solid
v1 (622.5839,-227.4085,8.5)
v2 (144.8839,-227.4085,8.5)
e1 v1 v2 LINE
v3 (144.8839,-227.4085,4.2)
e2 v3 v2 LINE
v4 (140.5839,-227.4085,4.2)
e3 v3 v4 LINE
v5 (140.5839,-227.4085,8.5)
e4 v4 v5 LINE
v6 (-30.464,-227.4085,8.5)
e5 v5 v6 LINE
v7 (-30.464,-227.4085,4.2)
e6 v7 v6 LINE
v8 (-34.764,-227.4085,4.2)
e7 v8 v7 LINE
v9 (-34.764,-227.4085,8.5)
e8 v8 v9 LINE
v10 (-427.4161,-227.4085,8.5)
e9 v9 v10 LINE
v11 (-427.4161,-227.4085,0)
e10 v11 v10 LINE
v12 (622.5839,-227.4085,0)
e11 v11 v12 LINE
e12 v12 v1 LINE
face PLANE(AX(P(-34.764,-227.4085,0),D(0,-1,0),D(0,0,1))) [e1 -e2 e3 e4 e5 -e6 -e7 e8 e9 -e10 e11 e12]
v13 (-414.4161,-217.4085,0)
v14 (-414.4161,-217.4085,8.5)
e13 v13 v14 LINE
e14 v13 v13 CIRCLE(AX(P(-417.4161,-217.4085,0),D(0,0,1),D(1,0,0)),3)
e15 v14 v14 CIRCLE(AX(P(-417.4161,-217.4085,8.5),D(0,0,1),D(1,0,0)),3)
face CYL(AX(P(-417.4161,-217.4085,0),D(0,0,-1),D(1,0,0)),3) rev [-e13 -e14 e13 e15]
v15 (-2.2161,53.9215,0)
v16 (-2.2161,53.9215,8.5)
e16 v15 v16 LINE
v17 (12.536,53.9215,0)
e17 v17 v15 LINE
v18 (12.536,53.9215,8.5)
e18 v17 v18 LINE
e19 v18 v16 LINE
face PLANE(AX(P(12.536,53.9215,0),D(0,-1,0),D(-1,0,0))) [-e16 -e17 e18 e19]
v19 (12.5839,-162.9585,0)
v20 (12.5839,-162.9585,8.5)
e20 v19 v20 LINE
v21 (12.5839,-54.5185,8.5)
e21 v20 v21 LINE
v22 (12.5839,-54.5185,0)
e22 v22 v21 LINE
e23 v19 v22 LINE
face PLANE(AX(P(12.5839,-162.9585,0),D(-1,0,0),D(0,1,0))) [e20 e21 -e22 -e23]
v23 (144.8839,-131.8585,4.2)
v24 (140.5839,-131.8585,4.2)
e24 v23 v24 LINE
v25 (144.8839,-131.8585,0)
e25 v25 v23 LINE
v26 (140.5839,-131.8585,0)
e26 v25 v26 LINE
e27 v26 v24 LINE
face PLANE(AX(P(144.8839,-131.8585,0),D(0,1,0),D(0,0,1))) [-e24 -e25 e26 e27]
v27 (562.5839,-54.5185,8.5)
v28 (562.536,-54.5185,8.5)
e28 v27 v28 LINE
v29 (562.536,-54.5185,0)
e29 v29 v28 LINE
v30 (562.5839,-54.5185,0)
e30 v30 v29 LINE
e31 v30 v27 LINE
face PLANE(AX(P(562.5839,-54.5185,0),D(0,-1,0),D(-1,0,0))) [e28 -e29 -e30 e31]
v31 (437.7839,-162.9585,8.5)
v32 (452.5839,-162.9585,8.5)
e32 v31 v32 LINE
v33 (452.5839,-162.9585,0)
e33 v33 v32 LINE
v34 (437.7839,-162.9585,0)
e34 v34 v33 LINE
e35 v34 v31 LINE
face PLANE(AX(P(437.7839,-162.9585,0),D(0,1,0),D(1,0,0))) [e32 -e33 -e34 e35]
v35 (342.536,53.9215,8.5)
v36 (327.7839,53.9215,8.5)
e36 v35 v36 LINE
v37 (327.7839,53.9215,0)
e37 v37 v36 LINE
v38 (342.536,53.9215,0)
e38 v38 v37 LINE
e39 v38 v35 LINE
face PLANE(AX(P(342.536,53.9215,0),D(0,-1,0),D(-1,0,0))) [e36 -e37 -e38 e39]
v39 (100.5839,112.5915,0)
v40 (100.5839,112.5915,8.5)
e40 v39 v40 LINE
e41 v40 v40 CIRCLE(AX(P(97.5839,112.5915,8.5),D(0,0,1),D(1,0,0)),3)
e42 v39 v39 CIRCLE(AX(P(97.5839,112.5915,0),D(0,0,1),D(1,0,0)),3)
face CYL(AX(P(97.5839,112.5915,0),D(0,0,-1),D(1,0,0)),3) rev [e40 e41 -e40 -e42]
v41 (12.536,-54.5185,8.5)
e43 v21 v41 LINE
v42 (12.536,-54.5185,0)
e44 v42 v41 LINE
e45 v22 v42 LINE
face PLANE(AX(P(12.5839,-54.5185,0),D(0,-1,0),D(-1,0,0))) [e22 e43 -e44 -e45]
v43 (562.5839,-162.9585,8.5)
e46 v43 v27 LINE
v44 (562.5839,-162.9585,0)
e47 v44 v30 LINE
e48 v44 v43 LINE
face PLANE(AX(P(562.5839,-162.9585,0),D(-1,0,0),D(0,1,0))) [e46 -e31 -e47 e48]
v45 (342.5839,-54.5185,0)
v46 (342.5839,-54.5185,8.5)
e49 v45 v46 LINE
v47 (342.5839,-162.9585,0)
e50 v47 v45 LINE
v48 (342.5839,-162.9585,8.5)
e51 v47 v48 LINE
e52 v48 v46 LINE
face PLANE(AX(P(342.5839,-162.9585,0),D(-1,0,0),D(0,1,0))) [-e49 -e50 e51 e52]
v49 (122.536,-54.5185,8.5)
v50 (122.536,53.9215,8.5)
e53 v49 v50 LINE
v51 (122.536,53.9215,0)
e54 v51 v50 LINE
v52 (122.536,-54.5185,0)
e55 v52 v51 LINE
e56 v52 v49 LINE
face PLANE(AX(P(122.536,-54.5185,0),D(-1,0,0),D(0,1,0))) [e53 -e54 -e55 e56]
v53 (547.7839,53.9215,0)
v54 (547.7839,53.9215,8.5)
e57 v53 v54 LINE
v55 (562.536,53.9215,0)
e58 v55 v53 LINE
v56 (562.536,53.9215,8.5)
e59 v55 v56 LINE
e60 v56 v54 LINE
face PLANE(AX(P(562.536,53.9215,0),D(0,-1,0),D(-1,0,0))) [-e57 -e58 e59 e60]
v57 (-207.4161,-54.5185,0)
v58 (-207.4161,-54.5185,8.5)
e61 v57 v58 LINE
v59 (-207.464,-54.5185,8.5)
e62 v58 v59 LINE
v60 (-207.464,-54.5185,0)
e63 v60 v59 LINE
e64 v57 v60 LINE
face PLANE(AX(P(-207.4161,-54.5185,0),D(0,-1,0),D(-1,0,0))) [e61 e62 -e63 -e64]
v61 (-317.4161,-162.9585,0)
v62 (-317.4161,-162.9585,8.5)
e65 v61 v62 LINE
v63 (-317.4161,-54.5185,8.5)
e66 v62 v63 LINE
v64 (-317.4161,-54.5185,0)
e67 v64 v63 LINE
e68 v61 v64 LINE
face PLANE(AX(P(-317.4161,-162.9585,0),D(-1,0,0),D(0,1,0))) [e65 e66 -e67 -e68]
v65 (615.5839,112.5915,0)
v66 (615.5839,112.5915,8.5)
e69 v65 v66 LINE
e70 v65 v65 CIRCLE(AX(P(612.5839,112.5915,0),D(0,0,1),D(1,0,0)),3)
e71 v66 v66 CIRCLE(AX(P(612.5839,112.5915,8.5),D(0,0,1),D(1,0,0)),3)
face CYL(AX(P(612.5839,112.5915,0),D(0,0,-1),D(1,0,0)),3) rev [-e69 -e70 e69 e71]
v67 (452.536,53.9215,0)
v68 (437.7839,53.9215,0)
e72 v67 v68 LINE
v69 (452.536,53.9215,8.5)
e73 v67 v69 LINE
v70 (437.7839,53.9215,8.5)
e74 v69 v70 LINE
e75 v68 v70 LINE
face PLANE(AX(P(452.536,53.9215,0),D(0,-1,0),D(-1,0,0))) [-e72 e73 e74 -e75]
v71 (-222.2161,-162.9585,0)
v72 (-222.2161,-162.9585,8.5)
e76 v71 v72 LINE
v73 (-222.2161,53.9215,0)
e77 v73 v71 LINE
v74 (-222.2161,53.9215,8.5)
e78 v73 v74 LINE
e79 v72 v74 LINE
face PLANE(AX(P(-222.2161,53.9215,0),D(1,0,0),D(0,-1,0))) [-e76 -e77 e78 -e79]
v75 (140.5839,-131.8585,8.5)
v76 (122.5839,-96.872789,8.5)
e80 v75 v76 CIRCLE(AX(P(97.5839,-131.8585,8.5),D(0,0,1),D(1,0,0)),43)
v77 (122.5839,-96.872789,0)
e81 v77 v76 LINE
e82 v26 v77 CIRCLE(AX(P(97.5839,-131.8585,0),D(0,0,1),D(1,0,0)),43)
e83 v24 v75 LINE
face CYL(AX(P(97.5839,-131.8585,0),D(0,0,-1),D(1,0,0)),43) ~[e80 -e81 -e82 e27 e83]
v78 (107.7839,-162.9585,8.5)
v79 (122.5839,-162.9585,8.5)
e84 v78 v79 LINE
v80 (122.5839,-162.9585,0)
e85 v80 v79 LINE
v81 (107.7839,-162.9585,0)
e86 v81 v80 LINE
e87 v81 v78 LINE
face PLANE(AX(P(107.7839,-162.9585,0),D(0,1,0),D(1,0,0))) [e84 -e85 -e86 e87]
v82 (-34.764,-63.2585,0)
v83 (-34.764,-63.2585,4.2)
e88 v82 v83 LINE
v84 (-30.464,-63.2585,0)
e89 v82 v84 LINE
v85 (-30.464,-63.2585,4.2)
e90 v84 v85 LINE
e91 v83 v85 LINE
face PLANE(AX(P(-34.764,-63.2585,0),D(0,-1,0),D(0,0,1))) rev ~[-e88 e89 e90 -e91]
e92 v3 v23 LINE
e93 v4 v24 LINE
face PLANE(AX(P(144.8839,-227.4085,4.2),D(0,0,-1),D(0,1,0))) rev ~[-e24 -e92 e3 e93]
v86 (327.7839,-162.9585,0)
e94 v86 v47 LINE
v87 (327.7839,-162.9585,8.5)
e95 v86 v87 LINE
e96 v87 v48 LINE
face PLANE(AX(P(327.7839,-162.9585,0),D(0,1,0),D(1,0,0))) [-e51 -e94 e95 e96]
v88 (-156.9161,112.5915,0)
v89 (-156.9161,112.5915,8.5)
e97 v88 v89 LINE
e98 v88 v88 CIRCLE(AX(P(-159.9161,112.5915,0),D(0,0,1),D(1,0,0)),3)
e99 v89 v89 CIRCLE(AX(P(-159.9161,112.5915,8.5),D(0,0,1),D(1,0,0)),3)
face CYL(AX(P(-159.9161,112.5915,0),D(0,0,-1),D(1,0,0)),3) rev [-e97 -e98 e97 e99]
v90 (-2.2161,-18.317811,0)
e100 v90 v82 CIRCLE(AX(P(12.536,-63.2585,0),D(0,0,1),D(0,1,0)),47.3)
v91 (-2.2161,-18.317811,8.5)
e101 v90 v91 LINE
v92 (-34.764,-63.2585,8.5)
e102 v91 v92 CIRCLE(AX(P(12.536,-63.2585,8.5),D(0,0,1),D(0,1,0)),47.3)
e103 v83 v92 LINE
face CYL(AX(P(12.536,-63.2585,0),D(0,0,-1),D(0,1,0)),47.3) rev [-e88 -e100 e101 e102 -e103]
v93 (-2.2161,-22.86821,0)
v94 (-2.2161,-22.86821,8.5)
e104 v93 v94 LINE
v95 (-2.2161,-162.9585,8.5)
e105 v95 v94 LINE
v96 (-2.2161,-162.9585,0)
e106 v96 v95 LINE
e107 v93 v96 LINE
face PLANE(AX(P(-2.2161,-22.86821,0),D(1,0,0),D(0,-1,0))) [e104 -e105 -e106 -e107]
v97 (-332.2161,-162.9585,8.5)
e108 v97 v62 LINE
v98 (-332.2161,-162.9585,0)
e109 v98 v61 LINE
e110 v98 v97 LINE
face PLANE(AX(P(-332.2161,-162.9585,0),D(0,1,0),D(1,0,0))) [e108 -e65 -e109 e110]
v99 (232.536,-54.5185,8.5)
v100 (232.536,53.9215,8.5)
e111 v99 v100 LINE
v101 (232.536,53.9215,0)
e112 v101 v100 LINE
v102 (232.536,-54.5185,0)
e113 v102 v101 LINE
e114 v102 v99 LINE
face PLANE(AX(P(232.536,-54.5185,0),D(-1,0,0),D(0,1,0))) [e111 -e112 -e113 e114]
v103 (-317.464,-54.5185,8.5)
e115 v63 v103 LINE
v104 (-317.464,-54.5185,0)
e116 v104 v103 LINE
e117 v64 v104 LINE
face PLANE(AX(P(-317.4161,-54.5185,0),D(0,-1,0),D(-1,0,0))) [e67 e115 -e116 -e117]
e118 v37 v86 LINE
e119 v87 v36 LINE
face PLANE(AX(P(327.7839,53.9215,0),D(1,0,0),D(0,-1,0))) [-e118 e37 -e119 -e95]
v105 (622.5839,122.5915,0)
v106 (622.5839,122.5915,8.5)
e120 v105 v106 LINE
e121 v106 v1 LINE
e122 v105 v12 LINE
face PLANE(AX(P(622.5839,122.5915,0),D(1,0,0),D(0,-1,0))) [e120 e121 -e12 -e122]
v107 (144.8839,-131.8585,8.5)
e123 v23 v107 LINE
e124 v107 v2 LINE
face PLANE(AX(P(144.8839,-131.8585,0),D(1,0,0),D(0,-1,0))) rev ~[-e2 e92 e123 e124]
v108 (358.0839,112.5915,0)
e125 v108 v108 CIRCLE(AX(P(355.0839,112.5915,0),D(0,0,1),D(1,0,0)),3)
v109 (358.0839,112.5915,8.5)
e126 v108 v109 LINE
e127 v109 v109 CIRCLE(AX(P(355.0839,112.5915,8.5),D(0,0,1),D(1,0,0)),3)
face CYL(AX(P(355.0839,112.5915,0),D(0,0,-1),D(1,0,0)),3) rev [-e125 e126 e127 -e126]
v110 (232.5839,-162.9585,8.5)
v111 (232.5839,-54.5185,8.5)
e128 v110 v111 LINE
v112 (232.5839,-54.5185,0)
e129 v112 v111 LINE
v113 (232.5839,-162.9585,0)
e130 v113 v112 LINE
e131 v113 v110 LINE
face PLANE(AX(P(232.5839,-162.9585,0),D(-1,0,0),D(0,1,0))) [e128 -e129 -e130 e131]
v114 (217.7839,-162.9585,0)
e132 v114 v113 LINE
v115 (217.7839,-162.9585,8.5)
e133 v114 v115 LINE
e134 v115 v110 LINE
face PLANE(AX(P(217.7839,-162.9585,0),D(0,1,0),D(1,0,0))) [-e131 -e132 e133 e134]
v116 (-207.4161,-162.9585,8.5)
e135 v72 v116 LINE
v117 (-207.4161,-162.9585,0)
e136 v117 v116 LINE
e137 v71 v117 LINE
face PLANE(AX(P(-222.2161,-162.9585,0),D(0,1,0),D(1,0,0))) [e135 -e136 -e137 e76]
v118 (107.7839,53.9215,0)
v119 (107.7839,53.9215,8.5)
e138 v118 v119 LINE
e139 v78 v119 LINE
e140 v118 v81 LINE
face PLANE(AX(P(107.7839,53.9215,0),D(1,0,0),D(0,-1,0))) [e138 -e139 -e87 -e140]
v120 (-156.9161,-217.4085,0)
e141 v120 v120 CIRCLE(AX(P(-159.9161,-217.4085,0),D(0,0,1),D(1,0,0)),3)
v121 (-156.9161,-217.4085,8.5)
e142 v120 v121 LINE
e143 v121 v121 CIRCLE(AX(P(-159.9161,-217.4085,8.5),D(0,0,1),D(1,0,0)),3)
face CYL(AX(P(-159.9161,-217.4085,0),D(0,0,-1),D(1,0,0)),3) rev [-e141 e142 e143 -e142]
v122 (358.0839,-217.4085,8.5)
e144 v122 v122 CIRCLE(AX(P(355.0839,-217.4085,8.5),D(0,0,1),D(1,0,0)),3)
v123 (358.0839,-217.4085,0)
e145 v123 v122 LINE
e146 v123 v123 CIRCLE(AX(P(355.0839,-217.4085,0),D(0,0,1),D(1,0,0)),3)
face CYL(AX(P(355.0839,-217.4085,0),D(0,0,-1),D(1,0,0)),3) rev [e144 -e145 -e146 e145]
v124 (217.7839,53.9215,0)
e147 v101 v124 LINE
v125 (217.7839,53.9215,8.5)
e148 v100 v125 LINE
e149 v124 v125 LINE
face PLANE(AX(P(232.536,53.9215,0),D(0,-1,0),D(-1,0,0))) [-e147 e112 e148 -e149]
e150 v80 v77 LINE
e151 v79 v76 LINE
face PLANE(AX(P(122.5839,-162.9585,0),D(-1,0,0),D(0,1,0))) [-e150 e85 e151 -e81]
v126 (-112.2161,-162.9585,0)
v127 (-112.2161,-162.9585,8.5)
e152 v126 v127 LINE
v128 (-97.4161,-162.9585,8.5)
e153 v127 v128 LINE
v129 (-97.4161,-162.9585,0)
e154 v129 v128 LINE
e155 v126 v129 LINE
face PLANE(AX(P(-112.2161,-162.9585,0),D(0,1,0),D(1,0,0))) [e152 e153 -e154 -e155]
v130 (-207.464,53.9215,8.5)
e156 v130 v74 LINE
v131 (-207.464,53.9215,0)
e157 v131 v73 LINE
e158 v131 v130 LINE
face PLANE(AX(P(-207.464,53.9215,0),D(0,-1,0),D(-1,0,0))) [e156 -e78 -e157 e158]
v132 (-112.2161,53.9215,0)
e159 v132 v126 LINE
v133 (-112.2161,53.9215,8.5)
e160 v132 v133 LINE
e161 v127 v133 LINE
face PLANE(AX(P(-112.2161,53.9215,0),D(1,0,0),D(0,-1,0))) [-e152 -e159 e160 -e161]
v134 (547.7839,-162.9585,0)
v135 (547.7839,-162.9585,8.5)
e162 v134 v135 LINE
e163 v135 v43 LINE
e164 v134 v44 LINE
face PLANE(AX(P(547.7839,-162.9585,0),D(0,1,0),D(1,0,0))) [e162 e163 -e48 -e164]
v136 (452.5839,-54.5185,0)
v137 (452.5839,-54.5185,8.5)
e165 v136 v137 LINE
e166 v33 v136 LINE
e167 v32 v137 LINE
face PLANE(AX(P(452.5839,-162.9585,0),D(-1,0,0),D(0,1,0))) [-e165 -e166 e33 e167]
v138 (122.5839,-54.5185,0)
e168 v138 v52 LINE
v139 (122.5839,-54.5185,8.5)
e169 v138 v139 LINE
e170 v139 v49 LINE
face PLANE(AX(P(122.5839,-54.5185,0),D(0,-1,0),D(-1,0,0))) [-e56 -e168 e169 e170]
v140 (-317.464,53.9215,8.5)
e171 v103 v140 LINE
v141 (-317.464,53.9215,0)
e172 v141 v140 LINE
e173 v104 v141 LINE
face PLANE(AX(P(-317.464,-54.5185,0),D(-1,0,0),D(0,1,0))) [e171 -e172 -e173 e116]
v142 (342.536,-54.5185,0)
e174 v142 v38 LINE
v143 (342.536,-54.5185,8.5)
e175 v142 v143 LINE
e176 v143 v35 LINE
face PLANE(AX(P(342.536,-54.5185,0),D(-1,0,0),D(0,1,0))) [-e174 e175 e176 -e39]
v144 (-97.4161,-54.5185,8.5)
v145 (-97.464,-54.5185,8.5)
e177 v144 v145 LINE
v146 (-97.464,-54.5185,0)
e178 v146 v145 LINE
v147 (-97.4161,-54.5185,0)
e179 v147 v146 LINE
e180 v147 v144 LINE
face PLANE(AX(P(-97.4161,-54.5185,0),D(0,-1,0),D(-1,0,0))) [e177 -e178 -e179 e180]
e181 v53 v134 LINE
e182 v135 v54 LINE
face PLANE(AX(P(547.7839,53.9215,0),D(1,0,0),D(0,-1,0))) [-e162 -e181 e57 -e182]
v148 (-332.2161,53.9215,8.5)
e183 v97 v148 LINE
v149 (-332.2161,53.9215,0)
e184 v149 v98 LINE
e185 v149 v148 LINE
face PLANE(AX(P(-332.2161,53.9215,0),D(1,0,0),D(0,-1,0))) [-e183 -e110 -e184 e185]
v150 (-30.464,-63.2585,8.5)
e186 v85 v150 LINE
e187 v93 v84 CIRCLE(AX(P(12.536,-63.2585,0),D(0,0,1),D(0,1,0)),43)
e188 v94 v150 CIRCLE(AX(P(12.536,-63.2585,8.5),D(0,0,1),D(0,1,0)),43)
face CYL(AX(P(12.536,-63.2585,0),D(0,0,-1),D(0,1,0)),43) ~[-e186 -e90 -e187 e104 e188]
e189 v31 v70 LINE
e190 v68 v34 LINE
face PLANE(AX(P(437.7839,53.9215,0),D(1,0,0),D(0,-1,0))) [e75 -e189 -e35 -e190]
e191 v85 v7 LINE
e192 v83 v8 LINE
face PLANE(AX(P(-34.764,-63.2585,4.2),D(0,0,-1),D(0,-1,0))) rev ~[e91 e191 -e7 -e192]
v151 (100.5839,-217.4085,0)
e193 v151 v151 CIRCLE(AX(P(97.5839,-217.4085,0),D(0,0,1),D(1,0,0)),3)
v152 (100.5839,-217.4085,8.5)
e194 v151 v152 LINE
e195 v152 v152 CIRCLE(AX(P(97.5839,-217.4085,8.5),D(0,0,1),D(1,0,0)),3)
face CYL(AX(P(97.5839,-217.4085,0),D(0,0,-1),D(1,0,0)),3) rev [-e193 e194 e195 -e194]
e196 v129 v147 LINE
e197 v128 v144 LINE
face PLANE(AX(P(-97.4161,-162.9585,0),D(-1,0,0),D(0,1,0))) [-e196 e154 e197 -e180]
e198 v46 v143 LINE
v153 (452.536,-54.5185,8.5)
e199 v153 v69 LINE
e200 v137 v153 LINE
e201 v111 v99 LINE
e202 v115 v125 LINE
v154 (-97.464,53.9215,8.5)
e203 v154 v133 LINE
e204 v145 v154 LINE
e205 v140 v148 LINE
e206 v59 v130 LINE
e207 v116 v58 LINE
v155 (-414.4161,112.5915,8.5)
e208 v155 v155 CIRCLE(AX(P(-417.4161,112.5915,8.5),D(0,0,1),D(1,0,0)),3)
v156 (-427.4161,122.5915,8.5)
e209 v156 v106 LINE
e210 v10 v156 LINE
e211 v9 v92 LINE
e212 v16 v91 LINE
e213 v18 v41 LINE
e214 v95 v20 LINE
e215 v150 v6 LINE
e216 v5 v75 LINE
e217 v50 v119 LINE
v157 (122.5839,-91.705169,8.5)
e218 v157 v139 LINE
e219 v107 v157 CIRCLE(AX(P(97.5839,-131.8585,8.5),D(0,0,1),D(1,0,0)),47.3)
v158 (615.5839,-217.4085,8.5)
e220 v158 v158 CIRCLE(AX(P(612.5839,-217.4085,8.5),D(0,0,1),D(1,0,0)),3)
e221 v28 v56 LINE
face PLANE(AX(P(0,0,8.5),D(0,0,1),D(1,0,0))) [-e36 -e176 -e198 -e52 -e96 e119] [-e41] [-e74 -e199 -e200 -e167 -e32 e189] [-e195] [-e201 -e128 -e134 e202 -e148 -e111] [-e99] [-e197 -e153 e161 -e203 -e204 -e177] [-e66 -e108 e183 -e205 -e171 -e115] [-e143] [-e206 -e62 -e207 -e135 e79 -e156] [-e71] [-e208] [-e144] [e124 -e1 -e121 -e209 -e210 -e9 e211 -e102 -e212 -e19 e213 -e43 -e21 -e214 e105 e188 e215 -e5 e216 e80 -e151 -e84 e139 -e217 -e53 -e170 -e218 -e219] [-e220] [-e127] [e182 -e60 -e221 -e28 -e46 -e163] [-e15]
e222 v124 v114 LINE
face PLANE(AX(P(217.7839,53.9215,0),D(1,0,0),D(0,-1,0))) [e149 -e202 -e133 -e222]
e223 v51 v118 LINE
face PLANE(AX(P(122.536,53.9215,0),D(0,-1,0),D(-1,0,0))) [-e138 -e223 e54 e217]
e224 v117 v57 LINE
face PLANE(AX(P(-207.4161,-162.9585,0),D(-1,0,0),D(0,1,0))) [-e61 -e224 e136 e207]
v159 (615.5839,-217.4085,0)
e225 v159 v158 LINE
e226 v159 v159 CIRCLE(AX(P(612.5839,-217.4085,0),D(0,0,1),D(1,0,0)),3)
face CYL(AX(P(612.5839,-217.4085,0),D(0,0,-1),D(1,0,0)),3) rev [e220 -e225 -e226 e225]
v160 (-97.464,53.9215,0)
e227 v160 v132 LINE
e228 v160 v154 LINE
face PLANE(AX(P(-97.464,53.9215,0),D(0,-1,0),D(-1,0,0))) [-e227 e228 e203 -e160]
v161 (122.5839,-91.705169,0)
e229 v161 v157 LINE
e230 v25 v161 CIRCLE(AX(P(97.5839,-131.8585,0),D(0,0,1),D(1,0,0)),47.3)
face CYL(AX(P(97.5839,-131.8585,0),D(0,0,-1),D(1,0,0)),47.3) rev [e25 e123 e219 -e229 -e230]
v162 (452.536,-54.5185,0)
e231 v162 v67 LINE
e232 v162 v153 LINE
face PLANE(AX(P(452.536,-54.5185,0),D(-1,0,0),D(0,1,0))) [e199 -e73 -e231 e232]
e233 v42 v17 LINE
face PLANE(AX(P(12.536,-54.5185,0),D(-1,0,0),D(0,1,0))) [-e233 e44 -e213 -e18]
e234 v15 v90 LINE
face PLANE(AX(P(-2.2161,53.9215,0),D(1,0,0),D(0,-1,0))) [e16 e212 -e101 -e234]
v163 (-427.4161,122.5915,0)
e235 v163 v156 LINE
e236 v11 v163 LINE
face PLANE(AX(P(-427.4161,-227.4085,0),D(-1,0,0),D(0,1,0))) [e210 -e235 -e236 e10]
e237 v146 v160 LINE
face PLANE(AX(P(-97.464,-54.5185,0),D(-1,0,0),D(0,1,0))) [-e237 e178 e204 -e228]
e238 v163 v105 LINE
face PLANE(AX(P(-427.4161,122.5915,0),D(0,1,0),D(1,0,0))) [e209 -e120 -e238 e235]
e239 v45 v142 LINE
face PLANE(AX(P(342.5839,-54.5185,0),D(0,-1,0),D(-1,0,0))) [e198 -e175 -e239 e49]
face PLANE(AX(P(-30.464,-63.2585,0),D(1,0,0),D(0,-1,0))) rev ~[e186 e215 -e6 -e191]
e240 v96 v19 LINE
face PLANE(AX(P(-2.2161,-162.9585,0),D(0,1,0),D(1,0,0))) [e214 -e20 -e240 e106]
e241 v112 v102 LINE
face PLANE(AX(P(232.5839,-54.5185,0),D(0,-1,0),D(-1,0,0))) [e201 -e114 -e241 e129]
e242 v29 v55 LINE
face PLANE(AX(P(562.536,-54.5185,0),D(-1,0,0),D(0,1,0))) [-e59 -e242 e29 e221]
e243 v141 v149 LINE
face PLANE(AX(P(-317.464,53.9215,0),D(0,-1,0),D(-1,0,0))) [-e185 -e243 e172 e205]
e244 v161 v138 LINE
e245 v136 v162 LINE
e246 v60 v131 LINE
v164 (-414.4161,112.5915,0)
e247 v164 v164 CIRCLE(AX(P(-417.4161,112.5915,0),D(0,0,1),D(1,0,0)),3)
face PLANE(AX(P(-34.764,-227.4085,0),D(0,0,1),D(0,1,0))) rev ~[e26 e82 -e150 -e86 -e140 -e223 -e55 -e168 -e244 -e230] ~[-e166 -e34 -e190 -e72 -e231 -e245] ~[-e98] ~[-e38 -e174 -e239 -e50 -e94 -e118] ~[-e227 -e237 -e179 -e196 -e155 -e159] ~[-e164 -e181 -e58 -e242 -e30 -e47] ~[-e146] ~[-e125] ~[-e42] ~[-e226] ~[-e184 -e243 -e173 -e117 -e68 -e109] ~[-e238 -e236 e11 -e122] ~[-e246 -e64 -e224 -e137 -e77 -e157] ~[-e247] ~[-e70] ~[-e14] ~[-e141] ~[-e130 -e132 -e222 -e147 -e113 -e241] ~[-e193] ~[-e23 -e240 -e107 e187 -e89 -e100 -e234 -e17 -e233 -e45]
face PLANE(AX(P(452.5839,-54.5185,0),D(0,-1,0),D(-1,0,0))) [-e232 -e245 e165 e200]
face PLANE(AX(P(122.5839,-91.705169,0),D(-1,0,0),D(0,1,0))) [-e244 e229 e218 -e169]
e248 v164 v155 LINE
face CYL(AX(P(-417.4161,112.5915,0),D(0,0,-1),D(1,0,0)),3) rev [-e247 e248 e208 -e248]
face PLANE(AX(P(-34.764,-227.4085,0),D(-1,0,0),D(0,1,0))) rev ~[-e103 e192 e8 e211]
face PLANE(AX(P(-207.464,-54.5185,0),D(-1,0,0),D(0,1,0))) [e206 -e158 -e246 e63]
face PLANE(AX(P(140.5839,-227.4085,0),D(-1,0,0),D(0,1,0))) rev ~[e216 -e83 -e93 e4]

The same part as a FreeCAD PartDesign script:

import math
import FreeCAD as App
import Part
import Sketcher
Q = App.Units.Quantity

doc = App.newDocument("Part")
body = doc.addObject("PartDesign::Body", "Body")

sketch1 = doc.addObject("Sketcher::SketchObject", "Sketch")
body.addObject(sketch1)
sketch1.AttachmentSupport = (doc.XY_Plane, [""])
sketch1.MapMode = "FlatFace"
sketch1.addGeometry([
    Part.LineSegment(App.Vector(144.884, -227.409, 0), App.Vector(622.584, -227.409, 0)),
    Part.LineSegment(App.Vector(622.584, -227.409, 0), App.Vector(622.584, 122.591, 0)),
    Part.LineSegment(App.Vector(622.584, 122.591, 0), App.Vector(-427.416, 122.591, 0)),
    Part.LineSegment(App.Vector(-427.416, 122.591, 0), App.Vector(-427.416, -227.409, 0)),
    Part.LineSegment(App.Vector(-427.416, -227.409, 0), App.Vector(-34.764, -227.409, 0)),
    Part.LineSegment(App.Vector(-34.764, -227.409, 0), App.Vector(-34.764, -63.258, 0)),
    Part.ArcOfCircle(Part.Circle(App.Vector(12.536, -63.258, 0), App.Vector(0, 0, 1), 47.3), math.radians(108), math.radians(180)),
    Part.LineSegment(App.Vector(-2.216, -18.318, 0), App.Vector(-2.216, 53.922, 0)),
    Part.LineSegment(App.Vector(-2.216, 53.922, 0), App.Vector(12.536, 53.922, 0)),
    Part.LineSegment(App.Vector(12.536, 53.922, 0), App.Vector(12.536, -54.519, 0)),
    Part.LineSegment(App.Vector(12.536, -54.519, 0), App.Vector(12.584, -54.519, 0)),
    Part.LineSegment(App.Vector(12.584, -54.519, 0), App.Vector(12.584, -162.958, 0)),
    Part.LineSegment(App.Vector(12.584, -162.958, 0), App.Vector(-2.216, -162.958, 0)),
    Part.LineSegment(App.Vector(-2.216, -162.958, 0), App.Vector(-2.216, -22.868, 0)),
    Part.ArcOfCircle(Part.Circle(App.Vector(12.536, -63.258, 0), App.Vector(0, 0, 1), 43), math.radians(110), math.radians(180)),
    Part.LineSegment(App.Vector(-30.464, -63.258, 0), App.Vector(-30.464, -227.409, 0)),
    Part.LineSegment(App.Vector(-30.464, -227.409, 0), App.Vector(140.584, -227.409, 0)),
    Part.LineSegment(App.Vector(140.584, -227.409, 0), App.Vector(140.584, -131.858, 0)),
    Part.ArcOfCircle(Part.Circle(App.Vector(97.584, -131.858, 0), App.Vector(0, 0, 1), 43), math.radians(0), math.radians(54)),
    Part.LineSegment(App.Vector(122.584, -96.873, 0), App.Vector(122.584, -162.958, 0)),
    Part.LineSegment(App.Vector(122.584, -162.958, 0), App.Vector(107.784, -162.958, 0)),
    Part.LineSegment(App.Vector(107.784, -162.958, 0), App.Vector(107.784, 53.922, 0)),
    Part.LineSegment(App.Vector(107.784, 53.922, 0), App.Vector(122.536, 53.922, 0)),
    Part.LineSegment(App.Vector(122.536, 53.922, 0), App.Vector(122.536, -54.519, 0)),
    Part.LineSegment(App.Vector(122.536, -54.519, 0), App.Vector(122.584, -54.519, 0)),
    Part.LineSegment(App.Vector(122.584, -54.519, 0), App.Vector(122.584, -91.705, 0)),
    Part.ArcOfCircle(Part.Circle(App.Vector(97.584, -131.858, 0), App.Vector(0, 0, 1), 47.3), math.radians(0), math.radians(58)),
    Part.LineSegment(App.Vector(144.884, -131.858, 0), App.Vector(144.884, -227.409, 0)),
    Part.Circle(App.Vector(-417.416, -217.409, 0), App.Vector(0, 0, 1), 3),
    Part.Circle(App.Vector(-159.916, -217.409, 0), App.Vector(0, 0, 1), 3),
    Part.LineSegment(App.Vector(-317.464, 53.922, 0), App.Vector(-317.464, -54.519, 0)),
    Part.LineSegment(App.Vector(-317.464, -54.519, 0), App.Vector(-317.416, -54.519, 0)),
    Part.LineSegment(App.Vector(-317.416, -54.519, 0), App.Vector(-317.416, -162.958, 0)),
    Part.LineSegment(App.Vector(-317.416, -162.958, 0), App.Vector(-332.216, -162.958, 0)),
    Part.LineSegment(App.Vector(-332.216, -162.958, 0), App.Vector(-332.216, 53.922, 0)),
    Part.LineSegment(App.Vector(-332.216, 53.922, 0), App.Vector(-317.464, 53.922, 0)),
    Part.LineSegment(App.Vector(-207.416, -54.519, 0), App.Vector(-207.416, -162.958, 0)),
    Part.LineSegment(App.Vector(-207.416, -162.958, 0), App.Vector(-222.216, -162.958, 0)),
    Part.LineSegment(App.Vector(-222.216, -162.958, 0), App.Vector(-222.216, 53.922, 0)),
    Part.LineSegment(App.Vector(-222.216, 53.922, 0), App.Vector(-207.464, 53.922, 0)),
    Part.LineSegment(App.Vector(-207.464, 53.922, 0), App.Vector(-207.464, -54.519, 0)),
    Part.LineSegment(App.Vector(-207.464, -54.519, 0), App.Vector(-207.416, -54.519, 0)),
    Part.LineSegment(App.Vector(-97.416, -54.519, 0), App.Vector(-97.416, -162.958, 0)),
    Part.LineSegment(App.Vector(-97.416, -162.958, 0), App.Vector(-112.216, -162.958, 0)),
    Part.LineSegment(App.Vector(-112.216, -162.958, 0), App.Vector(-112.216, 53.922, 0)),
    Part.LineSegment(App.Vector(-112.216, 53.922, 0), App.Vector(-97.464, 53.922, 0)),
    Part.LineSegment(App.Vector(-97.464, 53.922, 0), App.Vector(-97.464, -54.519, 0)),
    Part.LineSegment(App.Vector(-97.464, -54.519, 0), App.Vector(-97.416, -54.519, 0)),
    Part.Circle(App.Vector(97.584, -217.409, 0), App.Vector(0, 0, 1), 3),
    Part.Circle(App.Vector(355.084, -217.409, 0), App.Vector(0, 0, 1), 3),
    Part.Circle(App.Vector(612.584, -217.409, 0), App.Vector(0, 0, 1), 3),
    Part.LineSegment(App.Vector(232.536, 53.922, 0), App.Vector(232.536, -54.519, 0)),
    Part.LineSegment(App.Vector(232.536, -54.519, 0), App.Vector(232.584, -54.519, 0)),
    Part.LineSegment(App.Vector(232.584, -54.519, 0), App.Vector(232.584, -162.958, 0)),
    Part.LineSegment(App.Vector(232.584, -162.958, 0), App.Vector(217.784, -162.958, 0)),
    Part.LineSegment(App.Vector(217.784, -162.958, 0), App.Vector(217.784, 53.922, 0)),
    Part.LineSegment(App.Vector(217.784, 53.922, 0), App.Vector(232.536, 53.922, 0)),
    Part.LineSegment(App.Vector(342.536, 53.922, 0), App.Vector(342.536, -54.519, 0)),
    Part.LineSegment(App.Vector(342.536, -54.519, 0), App.Vector(342.584, -54.519, 0)),
    Part.LineSegment(App.Vector(342.584, -54.519, 0), App.Vector(342.584, -162.958, 0)),
    Part.LineSegment(App.Vector(342.584, -162.958, 0), App.Vector(327.784, -162.958, 0)),
    Part.LineSegment(App.Vector(327.784, -162.958, 0), App.Vector(327.784, 53.922, 0)),
    Part.LineSegment(App.Vector(327.784, 53.922, 0), App.Vector(342.536, 53.922, 0)),
    Part.LineSegment(App.Vector(452.584, -54.519, 0), App.Vector(452.584, -162.958, 0)),
    Part.LineSegment(App.Vector(452.584, -162.958, 0), App.Vector(437.784, -162.958, 0)),
    Part.LineSegment(App.Vector(437.784, -162.958, 0), App.Vector(437.784, 53.922, 0)),
    Part.LineSegment(App.Vector(437.784, 53.922, 0), App.Vector(452.536, 53.922, 0)),
    Part.LineSegment(App.Vector(452.536, 53.922, 0), App.Vector(452.536, -54.519, 0)),
    Part.LineSegment(App.Vector(452.536, -54.519, 0), App.Vector(452.584, -54.519, 0)),
    Part.LineSegment(App.Vector(562.536, 53.922, 0), App.Vector(562.536, -54.519, 0)),
    Part.LineSegment(App.Vector(562.536, -54.519, 0), App.Vector(562.584, -54.519, 0)),
    Part.LineSegment(App.Vector(562.584, -54.519, 0), App.Vector(562.584, -162.958, 0)),
    Part.LineSegment(App.Vector(562.584, -162.958, 0), App.Vector(547.784, -162.958, 0)),
    Part.LineSegment(App.Vector(547.784, -162.958, 0), App.Vector(547.784, 53.922, 0)),
    Part.LineSegment(App.Vector(547.784, 53.922, 0), App.Vector(562.536, 53.922, 0)),
    Part.Circle(App.Vector(-417.416, 112.591, 0), App.Vector(0, 0, 1), 3),
    Part.Circle(App.Vector(-159.916, 112.591, 0), App.Vector(0, 0, 1), 3),
    Part.Circle(App.Vector(97.584, 112.591, 0), App.Vector(0, 0, 1), 3),
    Part.Circle(App.Vector(355.084, 112.591, 0), App.Vector(0, 0, 1), 3),
    Part.Circle(App.Vector(612.584, 112.591, 0), App.Vector(0, 0, 1), 3),
], False)
sketch1.addConstraint([
    Sketcher.Constraint("Coincident", 0, 2, 1, 1),
    Sketcher.Constraint("Coincident", 1, 2, 2, 1),
    Sketcher.Constraint("Coincident", 2, 2, 3, 1),
    Sketcher.Constraint("Coincident", 3, 2, 4, 1),
    Sketcher.Constraint("Coincident", 4, 2, 5, 1),
    Sketcher.Constraint("Tangent", 5, 2, 6, 2),
    Sketcher.Constraint("Coincident", 6, 1, 7, 1),
    Sketcher.Constraint("Coincident", 7, 2, 8, 1),
    Sketcher.Constraint("Coincident", 8, 2, 9, 1),
    Sketcher.Constraint("Coincident", 9, 2, 10, 1),
    Sketcher.Constraint("Coincident", 10, 2, 11, 1),
    Sketcher.Constraint("Coincident", 11, 2, 12, 1),
    Sketcher.Constraint("Coincident", 12, 2, 13, 1),
    Sketcher.Constraint("Coincident", 13, 2, 14, 1),
    Sketcher.Constraint("Tangent", 14, 2, 15, 1),
    Sketcher.Constraint("Coincident", 15, 2, 16, 1),
    Sketcher.Constraint("Coincident", 16, 2, 17, 1),
    Sketcher.Constraint("Tangent", 17, 2, 18, 1),
    Sketcher.Constraint("Coincident", 18, 2, 19, 1),
    Sketcher.Constraint("Coincident", 19, 2, 20, 1),
    Sketcher.Constraint("Coincident", 20, 2, 21, 1),
    Sketcher.Constraint("Coincident", 21, 2, 22, 1),
    Sketcher.Constraint("Coincident", 22, 2, 23, 1),
    Sketcher.Constraint("Coincident", 23, 2, 24, 1),
    Sketcher.Constraint("Coincident", 24, 2, 25, 1),
    Sketcher.Constraint("Coincident", 25, 2, 26, 2),
    Sketcher.Constraint("Tangent", 26, 1, 27, 1),
    Sketcher.Constraint("Coincident", 27, 2, 0, 1),
    Sketcher.Constraint("Coincident", 30, 2, 31, 1),
    Sketcher.Constraint("Coincident", 31, 2, 32, 1),
    Sketcher.Constraint("Coincident", 32, 2, 33, 1),
    Sketcher.Constraint("Coincident", 33, 2, 34, 1),
    Sketcher.Constraint("Coincident", 34, 2, 35, 1),
    Sketcher.Constraint("Coincident", 35, 2, 30, 1),
    Sketcher.Constraint("Coincident", 36, 2, 37, 1),
    Sketcher.Constraint("Coincident", 37, 2, 38, 1),
    Sketcher.Constraint("Coincident", 38, 2, 39, 1),
    Sketcher.Constraint("Coincident", 39, 2, 40, 1),
    Sketcher.Constraint("Coincident", 40, 2, 41, 1),
    Sketcher.Constraint("Coincident", 41, 2, 36, 1),
    Sketcher.Constraint("Coincident", 42, 2, 43, 1),
    Sketcher.Constraint("Coincident", 43, 2, 44, 1),
    Sketcher.Constraint("Coincident", 44, 2, 45, 1),
    Sketcher.Constraint("Coincident", 45, 2, 46, 1),
    Sketcher.Constraint("Coincident", 46, 2, 47, 1),
    Sketcher.Constraint("Coincident", 47, 2, 42, 1),
    Sketcher.Constraint("Coincident", 51, 2, 52, 1),
    Sketcher.Constraint("Coincident", 52, 2, 53, 1),
    Sketcher.Constraint("Coincident", 53, 2, 54, 1),
    Sketcher.Constraint("Coincident", 54, 2, 55, 1),
    Sketcher.Constraint("Coincident", 55, 2, 56, 1),
    Sketcher.Constraint("Coincident", 56, 2, 51, 1),
    Sketcher.Constraint("Coincident", 57, 2, 58, 1),
    Sketcher.Constraint("Coincident", 58, 2, 59, 1),
    Sketcher.Constraint("Coincident", 59, 2, 60, 1),
    Sketcher.Constraint("Coincident", 60, 2, 61, 1),
    Sketcher.Constraint("Coincident", 61, 2, 62, 1),
    Sketcher.Constraint("Coincident", 62, 2, 57, 1),
    Sketcher.Constraint("Coincident", 63, 2, 64, 1),
    Sketcher.Constraint("Coincident", 64, 2, 65, 1),
    Sketcher.Constraint("Coincident", 65, 2, 66, 1),
    Sketcher.Constraint("Coincident", 66, 2, 67, 1),
    Sketcher.Constraint("Coincident", 67, 2, 68, 1),
    Sketcher.Constraint("Coincident", 68, 2, 63, 1),
    Sketcher.Constraint("Coincident", 69, 2, 70, 1),
    Sketcher.Constraint("Coincident", 70, 2, 71, 1),
    Sketcher.Constraint("Coincident", 71, 2, 72, 1),
    Sketcher.Constraint("Coincident", 72, 2, 73, 1),
    Sketcher.Constraint("Coincident", 73, 2, 74, 1),
    Sketcher.Constraint("Coincident", 74, 2, 69, 1),
    Sketcher.Constraint("Horizontal", 0),
    Sketcher.Constraint("Vertical", 1),
    Sketcher.Constraint("Horizontal", 2),
    Sketcher.Constraint("Vertical", 3),
    Sketcher.Constraint("Horizontal", 4),
    Sketcher.Constraint("Vertical", 5),
    Sketcher.Constraint("Vertical", 7),
    Sketcher.Constraint("Horizontal", 8),
    Sketcher.Constraint("Vertical", 9),
    Sketcher.Constraint("Horizontal", 10),
    Sketcher.Constraint("Vertical", 11),
    Sketcher.Constraint("Horizontal", 12),
    Sketcher.Constraint("Vertical", 13),
    Sketcher.Constraint("Vertical", 15),
    Sketcher.Constraint("Horizontal", 16),
    Sketcher.Constraint("Vertical", 17),
    Sketcher.Constraint("Vertical", 19),
    Sketcher.Constraint("Horizontal", 20),
    Sketcher.Constraint("Vertical", 21),
    Sketcher.Constraint("Horizontal", 22),
    Sketcher.Constraint("Vertical", 23),
    Sketcher.Constraint("Horizontal", 24),
    Sketcher.Constraint("Vertical", 25),
    Sketcher.Constraint("Vertical", 27),
    Sketcher.Constraint("Vertical", 30),
    Sketcher.Constraint("Horizontal", 31),
    Sketcher.Constraint("Vertical", 32),
    Sketcher.Constraint("Horizontal", 33),
    Sketcher.Constraint("Vertical", 34),
    Sketcher.Constraint("Horizontal", 35),
    Sketcher.Constraint("Vertical", 36),
    Sketcher.Constraint("Horizontal", 37),
    Sketcher.Constraint("Vertical", 38),
    Sketcher.Constraint("Horizontal", 39),
    Sketcher.Constraint("Vertical", 40),
    Sketcher.Constraint("Horizontal", 41),
    Sketcher.Constraint("Vertical", 42),
    Sketcher.Constraint("Horizontal", 43),
    Sketcher.Constraint("Vertical", 44),
    Sketcher.Constraint("Horizontal", 45),
    Sketcher.Constraint("Vertical", 46),
    Sketcher.Constraint("Horizontal", 47),
    Sketcher.Constraint("Vertical", 51),
    Sketcher.Constraint("Horizontal", 52),
    Sketcher.Constraint("Vertical", 53),
    Sketcher.Constraint("Horizontal", 54),
    Sketcher.Constraint("Vertical", 55),
    Sketcher.Constraint("Horizontal", 56),
    Sketcher.Constraint("Vertical", 57),
    Sketcher.Constraint("Horizontal", 58),
    Sketcher.Constraint("Vertical", 59),
    Sketcher.Constraint("Horizontal", 60),
    Sketcher.Constraint("Vertical", 61),
    Sketcher.Constraint("Horizontal", 62),
    Sketcher.Constraint("Vertical", 63),
    Sketcher.Constraint("Horizontal", 64),
    Sketcher.Constraint("Vertical", 65),
    Sketcher.Constraint("Horizontal", 66),
    Sketcher.Constraint("Vertical", 67),
    Sketcher.Constraint("Horizontal", 68),
    Sketcher.Constraint("Vertical", 69),
    Sketcher.Constraint("Horizontal", 70),
    Sketcher.Constraint("Vertical", 71),
    Sketcher.Constraint("Horizontal", 72),
    Sketcher.Constraint("Vertical", 73),
    Sketcher.Constraint("Horizontal", 74),
    Sketcher.Constraint("Coincident", 14, 3, 6, 3),
    Sketcher.Constraint("Coincident", 26, 3, 18, 3),
    Sketcher.Constraint("Equal", 14, 18),
    Sketcher.Constraint("Equal", 6, 26),
    Sketcher.Constraint("Equal", 28, 29),
    Sketcher.Constraint("Equal", 29, 48),
    Sketcher.Constraint("Equal", 48, 49),
    Sketcher.Constraint("Equal", 49, 50),
    Sketcher.Constraint("Equal", 50, 75),
    Sketcher.Constraint("Equal", 75, 76),
    Sketcher.Constraint("Equal", 76, 77),
    Sketcher.Constraint("Equal", 77, 78),
    Sketcher.Constraint("Equal", 78, 79),
    Sketcher.Constraint("Horizontal", 28, 3, 29, 3),
    Sketcher.Constraint("Horizontal", 29, 3, 48, 3),
    Sketcher.Constraint("Horizontal", 48, 3, 49, 3),
    Sketcher.Constraint("Horizontal", 49, 3, 50, 3),
    Sketcher.Constraint("Horizontal", 75, 3, 76, 3),
    Sketcher.Constraint("Horizontal", 76, 3, 77, 3),
    Sketcher.Constraint("Horizontal", 77, 3, 78, 3),
    Sketcher.Constraint("Horizontal", 78, 3, 79, 3),
    Sketcher.Constraint("Horizontal", 0, 2, 3, 2),
    Sketcher.Constraint("Horizontal", 4, 2, 15, 2),
    Sketcher.Constraint("Horizontal", 12, 2, 19, 2),
    Sketcher.Constraint("Horizontal", 8, 2, 21, 2),
    Sketcher.Constraint("Horizontal", 10, 2, 23, 2),
    Sketcher.Constraint("Horizontal", 24, 2, 30, 2),
    Sketcher.Constraint("Horizontal", 20, 2, 32, 2),
    Sketcher.Constraint("Horizontal", 22, 2, 34, 2),
    Sketcher.Constraint("Horizontal", 33, 2, 36, 2),
    Sketcher.Constraint("Horizontal", 35, 2, 38, 2),
    Sketcher.Constraint("Horizontal", 31, 2, 40, 2),
    Sketcher.Constraint("Horizontal", 37, 2, 42, 2),
    Sketcher.Constraint("Horizontal", 39, 2, 44, 2),
    Sketcher.Constraint("Horizontal", 41, 2, 46, 2),
    Sketcher.Constraint("Horizontal", 47, 2, 51, 2),
    Sketcher.Constraint("Horizontal", 43, 2, 53, 2),
    Sketcher.Constraint("Horizontal", 45, 2, 55, 2),
    Sketcher.Constraint("Horizontal", 52, 2, 57, 2),
    Sketcher.Constraint("Horizontal", 54, 2, 59, 2),
    Sketcher.Constraint("Horizontal", 56, 2, 61, 2),
    Sketcher.Constraint("Horizontal", 60, 2, 63, 2),
    Sketcher.Constraint("Horizontal", 62, 2, 65, 2),
    Sketcher.Constraint("Horizontal", 58, 2, 67, 2),
    Sketcher.Constraint("Horizontal", 68, 2, 69, 2),
    Sketcher.Constraint("Horizontal", 64, 2, 71, 2),
    Sketcher.Constraint("Horizontal", 66, 2, 73, 2),
    Sketcher.Constraint("Vertical", 26, 3, 48, 3),
    Sketcher.Constraint("Vertical", 28, 3, 75, 3),
    Sketcher.Constraint("Vertical", 29, 3, 76, 3),
    Sketcher.Constraint("Vertical", 48, 3, 77, 3),
    Sketcher.Constraint("Vertical", 49, 3, 78, 3),
    Sketcher.Constraint("Vertical", 50, 3, 79, 3),
    Sketcher.Constraint("Vertical", 14, 3, 8, 2),
    Sketcher.Constraint("Vertical", 7, 2, 12, 2),
    Sketcher.Constraint("Vertical", 19, 2, 24, 2),
    Sketcher.Constraint("Equal", 12, 20),
    Sketcher.Constraint("Equal", 8, 22),
    Sketcher.Constraint("Equal", 24, 31),
    Sketcher.Constraint("Equal", 20, 33),
    Sketcher.Constraint("Equal", 33, 37),
    Sketcher.Constraint("Equal", 35, 39),
    Sketcher.Constraint("Equal", 37, 43),
    Sketcher.Constraint("Equal", 39, 45),
    Sketcher.Constraint("Equal", 47, 52),
    Sketcher.Constraint("Equal", 43, 54),
    Sketcher.Constraint("Equal", 52, 58),
    Sketcher.Constraint("Equal", 54, 60),
    Sketcher.Constraint("Equal", 60, 64),
    Sketcher.Constraint("Equal", 62, 66),
    Sketcher.Constraint("Equal", 68, 70),
    Sketcher.Constraint("Equal", 64, 72),
    Sketcher.Constraint("Equal", 9, 11),
    Sketcher.Constraint("DistanceX", 2, 2, 2, 1, Q("1050 mm")),
    Sketcher.Constraint("DistanceY", 1, 1, 1, 2, Q("350 mm")),
    Sketcher.Constraint("Diameter", 28, Q("6 mm")),
    Sketcher.Constraint("Radius", 14, Q("43 mm")),
    Sketcher.Constraint("Radius", 6, Q("47.3 mm")),
    Sketcher.Constraint("DistanceX", 0, 1, 0, 2, Q("477.7 mm")),
    Sketcher.Constraint("DistanceX", 12, 2, 12, 1, Q("14.8 mm")),
    Sketcher.Constraint("DistanceY", 5, 1, 5, 2, Q("164.15 mm")),
    Sketcher.Constraint("DistanceY", 9, 2, 9, 1, Q("108.44 mm")),
    Sketcher.Constraint("DistanceY", 17, 1, 17, 2, Q("95.55 mm")),
    Sketcher.Constraint("DistanceX", 4, 1, 4, 2, Q("392.652 mm")),
    Sketcher.Constraint("DistanceX", 8, 1, 8, 2, Q("14.752 mm")),
    Sketcher.Constraint("DistanceY", 7, 1, 7, 2, Q("72.2393 mm")),
    Sketcher.Constraint("DistanceY", 19, 2, 19, 1, Q("66.0857 mm")),
    Sketcher.Constraint("DistanceX", -1, 1, 6, 3, Q("12.536 mm")),
    Sketcher.Constraint("DistanceX", 28, 3, -1, 1, Q("417.416 mm")),
    Sketcher.Constraint("DistanceX", 29, 3, -1, 1, Q("159.916 mm")),
    Sketcher.Constraint("DistanceX", -1, 1, 49, 3, Q("355.084 mm")),
    Sketcher.Constraint("DistanceX", -1, 1, 50, 3, Q("612.584 mm")),
    Sketcher.Constraint("DistanceX", 30, 2, -1, 1, Q("317.464 mm")),
    Sketcher.Constraint("DistanceX", 36, 2, -1, 1, Q("207.416 mm")),
    Sketcher.Constraint("DistanceX", 42, 2, -1, 1, Q("97.416 mm")),
    Sketcher.Constraint("DistanceX", -1, 1, 51, 2, Q("232.536 mm")),
    Sketcher.Constraint("DistanceX", -1, 1, 57, 2, Q("342.536 mm")),
    Sketcher.Constraint("DistanceX", -1, 1, 63, 2, Q("452.584 mm")),
    Sketcher.Constraint("DistanceX", -1, 1, 69, 2, Q("562.536 mm")),
    Sketcher.Constraint("DistanceY", 6, 3, -1, 1, Q("63.2585 mm")),
    Sketcher.Constraint("DistanceY", 28, 3, -1, 1, Q("217.4085 mm")),
    Sketcher.Constraint("DistanceY", -1, 1, 75, 3, Q("112.5915 mm")),
])
pad1 = doc.addObject("PartDesign::Pad", "Pad")
body.addObject(pad1)
pad1.Profile = sketch1
pad1.Length = 8.5

sketch2 = doc.addObject("Sketcher::SketchObject", "Sketch001")
body.addObject(sketch2)
sketch2.AttachmentSupport = (doc.YZ_Plane, [""])
sketch2.MapMode = "FlatFace"
sketch2.AttachmentOffset = App.Placement(App.Vector(0, 0, 144.8839), App.Rotation())
sketch2.addGeometry([
    Part.LineSegment(App.Vector(-131.9, 4.2, 0), App.Vector(-131.9, 0, 0)),
    Part.LineSegment(App.Vector(-131.9, 0, 0), App.Vector(-227.4, 0, 0)),
    Part.LineSegment(App.Vector(-227.4, 0, 0), App.Vector(-227.4, 4.2, 0)),
    Part.LineSegment(App.Vector(-227.4, 4.2, 0), App.Vector(-131.9, 4.2, 0)),
], False)
sketch2.addConstraint([
    Sketcher.Constraint("Coincident", 0, 2, 1, 1),
    Sketcher.Constraint("Coincident", 1, 2, 2, 1),
    Sketcher.Constraint("Coincident", 2, 2, 3, 1),
    Sketcher.Constraint("Coincident", 3, 2, 0, 1),
    Sketcher.Constraint("Vertical", 0),
    Sketcher.Constraint("Horizontal", 1),
    Sketcher.Constraint("Vertical", 2),
    Sketcher.Constraint("Horizontal", 3),
    Sketcher.Constraint("PointOnObject", 0, 2, -1),
    Sketcher.Constraint("DistanceY", 0, 2, 0, 1, Q("4.2 mm")),
    Sketcher.Constraint("DistanceX", 1, 2, 1, 1, Q("95.55 mm")),
    Sketcher.Constraint("DistanceX", 0, 2, -1, 1, Q("131.8585 mm")),
])
pad2 = doc.addObject("PartDesign::Pad", "Pad001")
body.addObject(pad2)
pad2.Profile = sketch2
pad2.Length = 4.3
pad2.Reversed = True

sketch3 = doc.addObject("Sketcher::SketchObject", "Sketch002")
body.addObject(sketch3)
sketch3.AttachmentSupport = (doc.YZ_Plane, [""])
sketch3.MapMode = "FlatFace"
sketch3.AttachmentOffset = App.Placement(App.Vector(0, 0, -34.764), App.Rotation())
sketch3.addGeometry([
    Part.LineSegment(App.Vector(-227.4, 4.2, 0), App.Vector(-227.4, 0, 0)),
    Part.LineSegment(App.Vector(-227.4, 0, 0), App.Vector(-63.3, 0, 0)),
    Part.LineSegment(App.Vector(-63.3, 0, 0), App.Vector(-63.3, 4.2, 0)),
    Part.LineSegment(App.Vector(-63.3, 4.2, 0), App.Vector(-227.4, 4.2, 0)),
], False)
sketch3.addConstraint([
    Sketcher.Constraint("Coincident", 0, 2, 1, 1),
    Sketcher.Constraint("Coincident", 1, 2, 2, 1),
    Sketcher.Constraint("Coincident", 2, 2, 3, 1),
    Sketcher.Constraint("Coincident", 3, 2, 0, 1),
    Sketcher.Constraint("Vertical", 0),
    Sketcher.Constraint("Horizontal", 1),
    Sketcher.Constraint("Vertical", 2),
    Sketcher.Constraint("Horizontal", 3),
    Sketcher.Constraint("PointOnObject", 0, 2, -1),
    Sketcher.Constraint("DistanceY", 0, 2, 0, 1, Q("4.2 mm")),
    Sketcher.Constraint("DistanceX", 1, 1, 1, 2, Q("164.15 mm")),
    Sketcher.Constraint("DistanceX", 0, 2, -1, 1, Q("227.4085 mm")),
])
pad3 = doc.addObject("PartDesign::Pad", "Pad002")
body.addObject(pad3)
pad3.Profile = sketch3
pad3.Length = 4.3

doc.recompute()
